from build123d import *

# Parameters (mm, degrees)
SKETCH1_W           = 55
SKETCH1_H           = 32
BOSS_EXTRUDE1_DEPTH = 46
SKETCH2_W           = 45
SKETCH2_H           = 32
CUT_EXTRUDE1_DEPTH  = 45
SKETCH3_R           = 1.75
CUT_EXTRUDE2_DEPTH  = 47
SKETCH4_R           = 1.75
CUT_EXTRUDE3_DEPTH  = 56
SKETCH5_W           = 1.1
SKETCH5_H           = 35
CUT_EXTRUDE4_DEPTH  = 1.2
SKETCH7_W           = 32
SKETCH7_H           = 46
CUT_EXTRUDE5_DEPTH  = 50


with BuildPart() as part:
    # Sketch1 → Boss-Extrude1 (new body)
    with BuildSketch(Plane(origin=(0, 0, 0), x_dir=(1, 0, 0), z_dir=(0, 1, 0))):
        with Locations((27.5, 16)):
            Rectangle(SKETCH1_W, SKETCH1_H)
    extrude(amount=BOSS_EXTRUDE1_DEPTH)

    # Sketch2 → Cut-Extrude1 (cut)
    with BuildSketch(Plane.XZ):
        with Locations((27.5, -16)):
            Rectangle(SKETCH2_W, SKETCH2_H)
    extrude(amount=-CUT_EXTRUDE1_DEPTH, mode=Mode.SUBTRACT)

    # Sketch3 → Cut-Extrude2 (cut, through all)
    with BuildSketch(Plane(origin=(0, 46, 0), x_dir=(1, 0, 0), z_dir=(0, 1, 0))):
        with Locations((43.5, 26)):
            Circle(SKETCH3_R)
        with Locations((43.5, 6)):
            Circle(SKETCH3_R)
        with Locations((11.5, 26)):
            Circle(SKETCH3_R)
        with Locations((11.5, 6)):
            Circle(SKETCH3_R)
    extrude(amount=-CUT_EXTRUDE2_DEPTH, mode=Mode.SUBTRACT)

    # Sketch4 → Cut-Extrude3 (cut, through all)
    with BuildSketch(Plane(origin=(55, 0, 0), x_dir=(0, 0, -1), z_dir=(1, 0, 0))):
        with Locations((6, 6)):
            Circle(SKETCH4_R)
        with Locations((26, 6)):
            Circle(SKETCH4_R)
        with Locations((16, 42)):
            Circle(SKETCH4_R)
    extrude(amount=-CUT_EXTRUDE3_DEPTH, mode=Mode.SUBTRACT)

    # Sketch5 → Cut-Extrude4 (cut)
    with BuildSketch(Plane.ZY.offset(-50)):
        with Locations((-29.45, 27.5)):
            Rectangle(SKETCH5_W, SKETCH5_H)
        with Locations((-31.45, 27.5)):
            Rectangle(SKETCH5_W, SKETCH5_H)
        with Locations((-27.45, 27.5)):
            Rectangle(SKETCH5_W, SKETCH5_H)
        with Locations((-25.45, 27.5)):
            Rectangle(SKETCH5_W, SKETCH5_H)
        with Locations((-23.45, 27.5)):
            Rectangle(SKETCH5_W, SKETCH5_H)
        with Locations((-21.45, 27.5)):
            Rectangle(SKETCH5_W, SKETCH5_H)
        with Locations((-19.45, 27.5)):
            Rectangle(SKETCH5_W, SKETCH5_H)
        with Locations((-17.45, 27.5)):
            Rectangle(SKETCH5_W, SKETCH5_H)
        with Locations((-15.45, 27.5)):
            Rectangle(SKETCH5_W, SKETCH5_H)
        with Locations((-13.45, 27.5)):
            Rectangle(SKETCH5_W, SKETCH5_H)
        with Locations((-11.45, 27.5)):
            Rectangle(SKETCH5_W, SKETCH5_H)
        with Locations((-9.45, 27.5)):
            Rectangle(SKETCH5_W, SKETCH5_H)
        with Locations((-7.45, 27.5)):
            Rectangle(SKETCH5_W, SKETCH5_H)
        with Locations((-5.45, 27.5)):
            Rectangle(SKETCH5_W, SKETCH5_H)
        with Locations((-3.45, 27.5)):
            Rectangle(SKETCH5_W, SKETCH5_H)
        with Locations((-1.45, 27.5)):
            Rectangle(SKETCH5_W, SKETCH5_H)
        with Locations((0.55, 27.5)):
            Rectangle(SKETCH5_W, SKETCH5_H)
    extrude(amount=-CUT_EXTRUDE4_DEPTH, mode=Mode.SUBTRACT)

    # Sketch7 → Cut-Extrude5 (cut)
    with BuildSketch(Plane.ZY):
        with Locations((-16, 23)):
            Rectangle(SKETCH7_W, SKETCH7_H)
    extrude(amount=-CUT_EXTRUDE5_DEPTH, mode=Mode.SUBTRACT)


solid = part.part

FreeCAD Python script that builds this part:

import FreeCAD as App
import Part
import Sketcher

V = App.Vector
Q = App.Units.Quantity


def add_polygon(sketch, points):
    """Adds a closed chain of lines whose ends are joined by coincident constraints."""
    first, n = sketch.GeometryCount, len(points)
    for a, b in zip(points, points[1:] + points[:1]):
        sketch.addGeometry(Part.LineSegment(App.Vector(*a, 0), App.Vector(*b, 0)), False)
    for i in range(n):
        sketch.addConstraint(Sketcher.Constraint("Coincident", first + i, 2, first + (i + 1) % n, 1))

doc = App.newDocument("Part")
body = doc.addObject("PartDesign::Body", "Body")

# Sketch on XZ plane
sketch1 = doc.addObject("Sketcher::SketchObject", "Sketch")
body.addObject(sketch1)
sketch1.AttachmentSupport = (doc.XZ_Plane, [""])
sketch1.MapMode = "FlatFace"
add_polygon(sketch1, [(0, -32), (0, 0), (55, 0), (55, -32)])  # lines 0-3
sketch1.addConstraint(Sketcher.Constraint("Vertical", 0))
sketch1.addConstraint(Sketcher.Constraint("Horizontal", 1))
sketch1.addConstraint(Sketcher.Constraint("Vertical", 2))
sketch1.addConstraint(Sketcher.Constraint("Horizontal", 3))
sketch1.addConstraint(Sketcher.Constraint("Coincident", 0, 2, -1, 1))
sketch1.addConstraint(Sketcher.Constraint("DistanceX", 1, 1, 1, 2, Q("55 mm")))
sketch1.addConstraint(Sketcher.Constraint("DistanceY", 0, 1, 0, 2, Q("32 mm")))
pad1 = doc.addObject("PartDesign::Pad", "Pad")
body.addObject(pad1)
pad1.Profile = sketch1
pad1.Length = 46
pad1.Reversed = True

# Sketch on XZ plane
sketch2 = doc.addObject("Sketcher::SketchObject", "Sketch001")
body.addObject(sketch2)
sketch2.AttachmentSupport = (doc.XZ_Plane, [""])
sketch2.MapMode = "FlatFace"
add_polygon(sketch2, [(5, 0), (5, -32), (50, -32), (50, 0)])  # lines 0-3
sketch2.addConstraint(Sketcher.Constraint("Vertical", 0))
sketch2.addConstraint(Sketcher.Constraint("Horizontal", 1))
sketch2.addConstraint(Sketcher.Constraint("Vertical", 2))
sketch2.addConstraint(Sketcher.Constraint("Horizontal", 3))
sketch2.addConstraint(Sketcher.Constraint("PointOnObject", 2, 2, -1))
sketch2.addConstraint(Sketcher.Constraint("DistanceX", 1, 1, 1, 2, Q("45 mm")))
sketch2.addConstraint(Sketcher.Constraint("DistanceY", 0, 2, 0, 1, Q("32 mm")))
sketch2.addConstraint(Sketcher.Constraint("DistanceX", -1, 1, 0, 2, Q("5 mm")))
pocket1 = doc.addObject("PartDesign::Pocket", "Pocket")
body.addObject(pocket1)
pocket1.Profile = sketch2
pocket1.Length = 45

# Sketch on XZ plane
sketch3 = doc.addObject("Sketcher::SketchObject", "Sketch002")
body.addObject(sketch3)
sketch3.AttachmentSupport = (doc.XZ_Plane, [""])
sketch3.MapMode = "FlatFace"
sketch3.AttachmentOffset = App.Placement(V(0, 0, -46), App.Rotation())
sketch3.addGeometry(Part.Circle(V(43.5, -26, 0), V(0, 0, 1), 1.8), False)
sketch3.addGeometry(Part.Circle(V(43.5, -6, 0), V(0, 0, 1), 1.8), False)
sketch3.addGeometry(Part.Circle(V(11.5, -26, 0), V(0, 0, 1), 1.8), False)
sketch3.addGeometry(Part.Circle(V(11.5, -6, 0), V(0, 0, 1), 1.8), False)
sketch3.addConstraint(Sketcher.Constraint("Equal", 0, 1))
sketch3.addConstraint(Sketcher.Constraint("Equal", 1, 2))
sketch3.addConstraint(Sketcher.Constraint("Equal", 2, 3))
sketch3.addConstraint(Sketcher.Constraint("Horizontal", 0, 3, 2, 3))
sketch3.addConstraint(Sketcher.Constraint("Horizontal", 1, 3, 3, 3))
sketch3.addConstraint(Sketcher.Constraint("Vertical", 0, 3, 1, 3))
sketch3.addConstraint(Sketcher.Constraint("Vertical", 2, 3, 3, 3))
sketch3.addConstraint(Sketcher.Constraint("Diameter", 0, Q("3.5 mm")))
sketch3.addConstraint(Sketcher.Constraint("DistanceY", 0, 3, -1, 1, Q("26 mm")))
sketch3.addConstraint(Sketcher.Constraint("DistanceY", 1, 3, -1, 1, Q("6 mm")))
sketch3.addConstraint(Sketcher.Constraint("DistanceX", 2, 3, 0, 3, Q("32 mm")))
sketch3.addConstraint(Sketcher.Constraint("DistanceX", -1, 1, 0, 3, Q("43.5 mm")))
pocket2 = doc.addObject("PartDesign::Pocket", "Pocket001")
body.addObject(pocket2)
pocket2.Profile = sketch3
pocket2.Type = "ThroughAll"
pocket2.Reversed = True

# Sketch on YZ plane
sketch4 = doc.addObject("Sketcher::SketchObject", "Sketch003")
body.addObject(sketch4)
sketch4.AttachmentSupport = (doc.YZ_Plane, [""])
sketch4.MapMode = "FlatFace"
sketch4.AttachmentOffset = App.Placement(V(0, 0, 55), App.Rotation())
sketch4.addGeometry(Part.Circle(V(6, -6, 0), V(0, 0, 1), 1.8), False)
sketch4.addGeometry(Part.Circle(V(6, -26, 0), V(0, 0, 1), 1.8), False)
sketch4.addGeometry(Part.Circle(V(42, -16, 0), V(0, 0, 1), 1.8), False)
sketch4.addConstraint(Sketcher.Constraint("Equal", 0, 1))
sketch4.addConstraint(Sketcher.Constraint("Equal", 1, 2))
sketch4.addConstraint(Sketcher.Constraint("Vertical", 0, 3, 1, 3))
sketch4.addConstraint(Sketcher.Constraint("Diameter", 0, Q("3.5 mm")))
sketch4.addConstraint(Sketcher.Constraint("DistanceX", -1, 1, 0, 3, Q("6 mm")))
sketch4.addConstraint(Sketcher.Constraint("DistanceY", 0, 3, -1, 1, Q("6 mm")))
sketch4.addConstraint(Sketcher.Constraint("DistanceY", 1, 3, -1, 1, Q("26 mm")))
sketch4.addConstraint(Sketcher.Constraint("DistanceX", -1, 1, 2, 3, Q("42 mm")))
sketch4.addConstraint(Sketcher.Constraint("DistanceY", 2, 3, -1, 1, Q("16 mm")))
pocket3 = doc.addObject("PartDesign::Pocket", "Pocket002")
body.addObject(pocket3)
pocket3.Profile = sketch4
pocket3.Type = "ThroughAll"

# Sketch on YZ plane
sketch5 = doc.addObject("Sketcher::SketchObject", "Sketch004")
body.addObject(sketch5)
sketch5.AttachmentSupport = (doc.YZ_Plane, [""])
sketch5.MapMode = "FlatFace"
sketch5.AttachmentOffset = App.Placement(V(0, 0, 50), App.Rotation())
add_polygon(sketch5, [(45, -30), (10, -30), (10, -28.9), (45, -28.9)])  # lines 0-3
add_polygon(sketch5, [(45, -32), (10, -32), (10, -30.9), (45, -30.9)])  # lines 4-7
add_polygon(sketch5, [(45, -28), (10, -28), (10, -26.9), (45, -26.9)])  # lines 8-11
add_polygon(sketch5, [(45, -26), (10, -26), (10, -24.9), (45, -24.9)])  # lines 12-15
add_polygon(sketch5, [(45, -24), (10, -24), (10, -22.9), (45, -22.9)])  # lines 16-19
add_polygon(sketch5, [(45, -22), (10, -22), (10, -20.9), (45, -20.9)])  # lines 20-23
add_polygon(sketch5, [(45, -20), (10, -20), (10, -18.9), (45, -18.9)])  # lines 24-27
add_polygon(sketch5, [(45, -18), (10, -18), (10, -16.9), (45, -16.9)])  # lines 28-31
add_polygon(sketch5, [(45, -16), (10, -16), (10, -14.9), (45, -14.9)])  # lines 32-35
add_polygon(sketch5, [(45, -14), (10, -14), (10, -12.9), (45, -12.9)])  # lines 36-39
add_polygon(sketch5, [(45, -12), (10, -12), (10, -10.9), (45, -10.9)])  # lines 40-43
add_polygon(sketch5, [(45, -10), (10, -10), (10, -8.9), (45, -8.9)])  # lines 44-47
add_polygon(sketch5, [(45, -8), (10, -8), (10, -6.9), (45, -6.9)])  # lines 48-51
add_polygon(sketch5, [(45, -6), (10, -6), (10, -4.9), (45, -4.9)])  # lines 52-55
add_polygon(sketch5, [(45, -4), (10, -4), (10, -2.9), (45, -2.9)])  # lines 56-59
add_polygon(sketch5, [(45, -2), (10, -2), (10, -0.9), (45, -0.9)])  # lines 60-63
add_polygon(sketch5, [(45, 0), (10, 0), (10, 1.1), (45, 1.1)])  # lines 64-67
sketch5.addConstraint(Sketcher.Constraint("Horizontal", 0))
sketch5.addConstraint(Sketcher.Constraint("Vertical", 1))
sketch5.addConstraint(Sketcher.Constraint("Horizontal", 2))
sketch5.addConstraint(Sketcher.Constraint("Vertical", 3))
sketch5.addConstraint(Sketcher.Constraint("Horizontal", 4))
sketch5.addConstraint(Sketcher.Constraint("Vertical", 5))
sketch5.addConstraint(Sketcher.Constraint("Horizontal", 6))
sketch5.addConstraint(Sketcher.Constraint("Vertical", 7))
sketch5.addConstraint(Sketcher.Constraint("Horizontal", 8))
sketch5.addConstraint(Sketcher.Constraint("Vertical", 9))
sketch5.addConstraint(Sketcher.Constraint("Horizontal", 10))
sketch5.addConstraint(Sketcher.Constraint("Vertical", 11))
sketch5.addConstraint(Sketcher.Constraint("Horizontal", 12))
sketch5.addConstraint(Sketcher.Constraint("Vertical", 13))
sketch5.addConstraint(Sketcher.Constraint("Horizontal", 14))
sketch5.addConstraint(Sketcher.Constraint("Vertical", 15))
sketch5.addConstraint(Sketcher.Constraint("Horizontal", 16))
sketch5.addConstraint(Sketcher.Constraint("Vertical", 17))
sketch5.addConstraint(Sketcher.Constraint("Horizontal", 18))
sketch5.addConstraint(Sketcher.Constraint("Vertical", 19))
sketch5.addConstraint(Sketcher.Constraint("Horizontal", 20))
sketch5.addConstraint(Sketcher.Constraint("Vertical", 21))
sketch5.addConstraint(Sketcher.Constraint("Horizontal", 22))
sketch5.addConstraint(Sketcher.Constraint("Vertical", 23))
sketch5.addConstraint(Sketcher.Constraint("Horizontal", 24))
sketch5.addConstraint(Sketcher.Constraint("Vertical", 25))
sketch5.addConstraint(Sketcher.Constraint("Horizontal", 26))
sketch5.addConstraint(Sketcher.Constraint("Vertical", 27))
sketch5.addConstraint(Sketcher.Constraint("Horizontal", 28))
sketch5.addConstraint(Sketcher.Constraint("Vertical", 29))
sketch5.addConstraint(Sketcher.Constraint("Horizontal", 30))
sketch5.addConstraint(Sketcher.Constraint("Vertical", 31))
sketch5.addConstraint(Sketcher.Constraint("Horizontal", 32))
sketch5.addConstraint(Sketcher.Constraint("Vertical", 33))
sketch5.addConstraint(Sketcher.Constraint("Horizontal", 34))
sketch5.addConstraint(Sketcher.Constraint("Vertical", 35))
sketch5.addConstraint(Sketcher.Constraint("Horizontal", 36))
sketch5.addConstraint(Sketcher.Constraint("Vertical", 37))
sketch5.addConstraint(Sketcher.Constraint("Horizontal", 38))
sketch5.addConstraint(Sketcher.Constraint("Vertical", 39))
sketch5.addConstraint(Sketcher.Constraint("Horizontal", 40))
sketch5.addConstraint(Sketcher.Constraint("Vertical", 41))
sketch5.addConstraint(Sketcher.Constraint("Horizontal", 42))
sketch5.addConstraint(Sketcher.Constraint("Vertical", 43))
sketch5.addConstraint(Sketcher.Constraint("Horizontal", 44))
sketch5.addConstraint(Sketcher.Constraint("Vertical", 45))
sketch5.addConstraint(Sketcher.Constraint("Horizontal", 46))
sketch5.addConstraint(Sketcher.Constraint("Vertical", 47))
sketch5.addConstraint(Sketcher.Constraint("Horizontal", 48))
sketch5.addConstraint(Sketcher.Constraint("Vertical", 49))
sketch5.addConstraint(Sketcher.Constraint("Horizontal", 50))
sketch5.addConstraint(Sketcher.Constraint("Vertical", 51))
sketch5.addConstraint(Sketcher.Constraint("Horizontal", 52))
sketch5.addConstraint(Sketcher.Constraint("Vertical", 53))
sketch5.addConstraint(Sketcher.Constraint("Horizontal", 54))
sketch5.addConstraint(Sketcher.Constraint("Vertical", 55))
sketch5.addConstraint(Sketcher.Constraint("Horizontal", 56))
sketch5.addConstraint(Sketcher.Constraint("Vertical", 57))
sketch5.addConstraint(Sketcher.Constraint("Horizontal", 58))
sketch5.addConstraint(Sketcher.Constraint("Vertical", 59))
sketch5.addConstraint(Sketcher.Constraint("Horizontal", 60))
sketch5.addConstraint(Sketcher.Constraint("Vertical", 61))
sketch5.addConstraint(Sketcher.Constraint("Horizontal", 62))
sketch5.addConstraint(Sketcher.Constraint("Vertical", 63))
sketch5.addConstraint(Sketcher.Constraint("Horizontal", 64))
sketch5.addConstraint(Sketcher.Constraint("Vertical", 65))
sketch5.addConstraint(Sketcher.Constraint("Horizontal", 66))
sketch5.addConstraint(Sketcher.Constraint("Vertical", 67))
sketch5.addConstraint(Sketcher.Constraint("PointOnObject", 64, 2, -1))
sketch5.addConstraint(Sketcher.Constraint("Vertical", 1, 2, 4, 2))
sketch5.addConstraint(Sketcher.Constraint("Vertical", 3, 2, 6, 2))
sketch5.addConstraint(Sketcher.Constraint("Vertical", 5, 2, 8, 2))
sketch5.addConstraint(Sketcher.Constraint("Vertical", 7, 2, 10, 2))
sketch5.addConstraint(Sketcher.Constraint("Vertical", 9, 2, 12, 2))
sketch5.addConstraint(Sketcher.Constraint("Vertical", 11, 2, 14, 2))
sketch5.addConstraint(Sketcher.Constraint("Vertical", 13, 2, 16, 2))
sketch5.addConstraint(Sketcher.Constraint("Vertical", 15, 2, 18, 2))
sketch5.addConstraint(Sketcher.Constraint("Vertical", 17, 2, 20, 2))
sketch5.addConstraint(Sketcher.Constraint("Vertical", 19, 2, 22, 2))
sketch5.addConstraint(Sketcher.Constraint("Vertical", 21, 2, 24, 2))
sketch5.addConstraint(Sketcher.Constraint("Vertical", 23, 2, 26, 2))
sketch5.addConstraint(Sketcher.Constraint("Vertical", 25, 2, 28, 2))
sketch5.addConstraint(Sketcher.Constraint("Vertical", 27, 2, 30, 2))
sketch5.addConstraint(Sketcher.Constraint("Vertical", 29, 2, 32, 2))
sketch5.addConstraint(Sketcher.Constraint("Vertical", 31, 2, 34, 2))
sketch5.addConstraint(Sketcher.Constraint("Vertical", 33, 2, 36, 2))
sketch5.addConstraint(Sketcher.Constraint("Vertical", 35, 2, 38, 2))
sketch5.addConstraint(Sketcher.Constraint("Vertical", 37, 2, 40, 2))
sketch5.addConstraint(Sketcher.Constraint("Vertical", 39, 2, 42, 2))
sketch5.addConstraint(Sketcher.Constraint("Vertical", 41, 2, 44, 2))
sketch5.addConstraint(Sketcher.Constraint("Vertical", 43, 2, 46, 2))
sketch5.addConstraint(Sketcher.Constraint("Vertical", 45, 2, 48, 2))
sketch5.addConstraint(Sketcher.Constraint("Vertical", 47, 2, 50, 2))
sketch5.addConstraint(Sketcher.Constraint("Vertical", 49, 2, 52, 2))
sketch5.addConstraint(Sketcher.Constraint("Vertical", 51, 2, 54, 2))
sketch5.addConstraint(Sketcher.Constraint("Vertical", 53, 2, 56, 2))
sketch5.addConstraint(Sketcher.Constraint("Vertical", 55, 2, 58, 2))
sketch5.addConstraint(Sketcher.Constraint("Vertical", 57, 2, 60, 2))
sketch5.addConstraint(Sketcher.Constraint("Vertical", 59, 2, 62, 2))
sketch5.addConstraint(Sketcher.Constraint("Vertical", 61, 2, 64, 2))
sketch5.addConstraint(Sketcher.Constraint("Vertical", 63, 2, 66, 2))
sketch5.addConstraint(Sketcher.Constraint("Equal", 3, 5))
sketch5.addConstraint(Sketcher.Constraint("Equal", 7, 9))
sketch5.addConstraint(Sketcher.Constraint("Equal", 11, 13))
sketch5.addConstraint(Sketcher.Constraint("Equal", 15, 17))
sketch5.addConstraint(Sketcher.Constraint("Equal", 19, 21))
sketch5.addConstraint(Sketcher.Constraint("Equal", 23, 25))
sketch5.addConstraint(Sketcher.Constraint("Equal", 27, 29))
sketch5.addConstraint(Sketcher.Constraint("Equal", 31, 33))
sketch5.addConstraint(Sketcher.Constraint("Equal", 35, 37))
sketch5.addConstraint(Sketcher.Constraint("Equal", 39, 41))
sketch5.addConstraint(Sketcher.Constraint("Equal", 43, 45))
sketch5.addConstraint(Sketcher.Constraint("Equal", 47, 49))
sketch5.addConstraint(Sketcher.Constraint("Equal", 51, 53))
sketch5.addConstraint(Sketcher.Constraint("Equal", 55, 57))
sketch5.addConstraint(Sketcher.Constraint("Equal", 59, 61))
sketch5.addConstraint(Sketcher.Constraint("Equal", 63, 65))
sketch5.addConstraint(Sketcher.Constraint("DistanceX", 0, 2, 0, 1, Q("35 mm")))
sketch5.addConstraint(Sketcher.Constraint("DistanceY", 1, 1, 1, 2, Q("1.1 mm")))
sketch5.addConstraint(Sketcher.Constraint("DistanceX", -1, 1, 0, 2, Q("10 mm")))
sketch5.addConstraint(Sketcher.Constraint("DistanceY", 0, 2, -1, 1, Q("30 mm")))
sketch5.addConstraint(Sketcher.Constraint("DistanceY", 4, 2, -1, 1, Q("32 mm")))
sketch5.addConstraint(Sketcher.Constraint("DistanceY", 8, 2, -1, 1, Q("28 mm")))
sketch5.addConstraint(Sketcher.Constraint("DistanceY", 12, 2, -1, 1, Q("26 mm")))
sketch5.addConstraint(Sketcher.Constraint("DistanceY", 16, 2, -1, 1, Q("24 mm")))
sketch5.addConstraint(Sketcher.Constraint("DistanceY", 20, 2, -1, 1, Q("22 mm")))
sketch5.addConstraint(Sketcher.Constraint("DistanceY", 24, 2, -1, 1, Q("20 mm")))
sketch5.addConstraint(Sketcher.Constraint("DistanceY", 28, 2, -1, 1, Q("18 mm")))
sketch5.addConstraint(Sketcher.Constraint("DistanceY", 32, 2, -1, 1, Q("16 mm")))
sketch5.addConstraint(Sketcher.Constraint("DistanceY", 36, 2, -1, 1, Q("14 mm")))
sketch5.addConstraint(Sketcher.Constraint("DistanceY", 40, 2, -1, 1, Q("12 mm")))
sketch5.addConstraint(Sketcher.Constraint("DistanceY", 44, 2, -1, 1, Q("10 mm")))
sketch5.addConstraint(Sketcher.Constraint("DistanceY", 48, 2, -1, 1, Q("8 mm")))
sketch5.addConstraint(Sketcher.Constraint("DistanceY", 52, 2, -1, 1, Q("6 mm")))
sketch5.addConstraint(Sketcher.Constraint("DistanceY", 56, 2, -1, 1, Q("4 mm")))
sketch5.addConstraint(Sketcher.Constraint("DistanceY", 60, 2, -1, 1, Q("2 mm")))
pocket4 = doc.addObject("PartDesign::Pocket", "Pocket003")
body.addObject(pocket4)
pocket4.Profile = sketch5
pocket4.Length = 1.2
pocket4.Reversed = True

# Sketch on YZ plane
sketch6 = doc.addObject("Sketcher::SketchObject", "Sketch005")
body.addObject(sketch6)
sketch6.AttachmentSupport = (doc.YZ_Plane, [""])
sketch6.MapMode = "FlatFace"
add_polygon(sketch6, [(46, -32), (0, -32), (0, 0), (46, 0)])  # lines 0-3
sketch6.addConstraint(Sketcher.Constraint("Horizontal", 0))
sketch6.addConstraint(Sketcher.Constraint("Vertical", 1))
sketch6.addConstraint(Sketcher.Constraint("Horizontal", 2))
sketch6.addConstraint(Sketcher.Constraint("Vertical", 3))
sketch6.addConstraint(Sketcher.Constraint("Coincident", 1, 2, -1, 1))
sketch6.addConstraint(Sketcher.Constraint("DistanceX", 0, 2, 0, 1, Q("46 mm")))
sketch6.addConstraint(Sketcher.Constraint("DistanceY", 1, 1, 1, 2, Q("32 mm")))
pocket5 = doc.addObject("PartDesign::Pocket", "Pocket004")
body.addObject(pocket5)
pocket5.Profile = sketch6
pocket5.Length = 50
pocket5.Reversed = True

doc.recompute()
